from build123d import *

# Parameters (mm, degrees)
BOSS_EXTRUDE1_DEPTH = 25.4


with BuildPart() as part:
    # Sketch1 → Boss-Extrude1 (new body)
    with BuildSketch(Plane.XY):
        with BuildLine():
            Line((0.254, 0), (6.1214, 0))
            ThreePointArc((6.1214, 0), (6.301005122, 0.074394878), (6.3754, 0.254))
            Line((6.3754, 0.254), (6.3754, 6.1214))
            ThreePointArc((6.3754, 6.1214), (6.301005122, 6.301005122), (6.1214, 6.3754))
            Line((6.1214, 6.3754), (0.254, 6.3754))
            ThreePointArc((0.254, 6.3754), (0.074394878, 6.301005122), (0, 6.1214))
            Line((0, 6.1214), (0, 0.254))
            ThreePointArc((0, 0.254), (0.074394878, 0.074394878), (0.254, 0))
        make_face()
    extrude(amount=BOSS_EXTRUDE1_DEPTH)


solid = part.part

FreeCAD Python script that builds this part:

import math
import FreeCAD as App
import Part
import Sketcher
from FreeCAD import Vector
Q = App.Units.Quantity

doc = App.newDocument("Part")
params = doc.addObject("Spreadsheet::Sheet", "Params")
for row, (alias, value) in enumerate([
    ("sketch1_radius", "0.01 in"),
    ("sketch1_width", "0.231 in"),
    ("pad1_length", "1 in"),
], start=1):
    params.set(f"A{row}", alias)
    params.set(f"B{row}", "=" + value)
    params.setAlias(f"B{row}", alias)

body = doc.addObject("PartDesign::Body", "Body")

# Sketch on XY plane
sketch1 = doc.addObject("Sketcher::SketchObject", "Sketch")
body.addObject(sketch1)
sketch1.AttachmentSupport = (doc.XY_Plane, [""])
sketch1.MapMode = "FlatFace"
sketch1.addGeometry([
    Part.LineSegment(Vector(0.25, 0, 0), Vector(6.12, 0, 0)),  # 0
    Part.ArcOfCircle(Part.Circle(Vector(6.12, 0.25, 0), Vector(0, 0, 1), 0.25), math.radians(-90), math.radians(0)),  # 1
    Part.LineSegment(Vector(6.38, 0.25, 0), Vector(6.38, 6.12, 0)),  # 2
    Part.ArcOfCircle(Part.Circle(Vector(6.12, 6.12, 0), Vector(0, 0, 1), 0.25), math.radians(0), math.radians(90)),  # 3
    Part.LineSegment(Vector(6.12, 6.38, 0), Vector(0.25, 6.38, 0)),  # 4
    Part.ArcOfCircle(Part.Circle(Vector(0.25, 6.12, 0), Vector(0, 0, 1), 0.25), math.radians(90), math.radians(180)),  # 5
    Part.LineSegment(Vector(0, 6.12, 0), Vector(0, 0.25, 0)),  # 6
    Part.ArcOfCircle(Part.Circle(Vector(0.25, 0.25, 0), Vector(0, 0, 1), 0.25), math.radians(-180), math.radians(-90)),  # 7
], False)
sketch1.addConstraint([
    Sketcher.Constraint("Tangent", 0, 2, 1, 1),
    Sketcher.Constraint("Tangent", 1, 2, 2, 1),
    Sketcher.Constraint("Tangent", 2, 2, 3, 1),
    Sketcher.Constraint("Tangent", 3, 2, 4, 1),
    Sketcher.Constraint("Tangent", 4, 2, 5, 1),
    Sketcher.Constraint("Tangent", 5, 2, 6, 1),
    Sketcher.Constraint("Tangent", 6, 2, 7, 1),
    Sketcher.Constraint("Tangent", 7, 2, 0, 1),
    Sketcher.Constraint("Horizontal", 0),
    Sketcher.Constraint("Vertical", 2),
    Sketcher.Constraint("Horizontal", 4),
    Sketcher.Constraint("Vertical", 6),
    Sketcher.Constraint("Equal", 1, 3),
    Sketcher.Constraint("Equal", 3, 5),
    Sketcher.Constraint("Equal", 5, 7),
    Sketcher.Constraint("PointOnObject", 0, 2, -1),
    Sketcher.Constraint("PointOnObject", 5, 2, -2),
    Sketcher.Constraint("Equal", 4, 2),
    Sketcher.Constraint("Radius", 1, Q("0.01 in")),
    Sketcher.Constraint("DistanceX", 0, 1, 0, 2, Q("0.231 in")),
])
sketch1.setExpression("Constraints[18]", "Params.sketch1_radius")
sketch1.setExpression("Constraints[19]", "Params.sketch1_width")
pad1 = doc.addObject("PartDesign::Pad", "Pad")
body.addObject(pad1)
pad1.Profile = sketch1
pad1.setExpression("Length", "Params.pad1_length")

doc.recompute()
